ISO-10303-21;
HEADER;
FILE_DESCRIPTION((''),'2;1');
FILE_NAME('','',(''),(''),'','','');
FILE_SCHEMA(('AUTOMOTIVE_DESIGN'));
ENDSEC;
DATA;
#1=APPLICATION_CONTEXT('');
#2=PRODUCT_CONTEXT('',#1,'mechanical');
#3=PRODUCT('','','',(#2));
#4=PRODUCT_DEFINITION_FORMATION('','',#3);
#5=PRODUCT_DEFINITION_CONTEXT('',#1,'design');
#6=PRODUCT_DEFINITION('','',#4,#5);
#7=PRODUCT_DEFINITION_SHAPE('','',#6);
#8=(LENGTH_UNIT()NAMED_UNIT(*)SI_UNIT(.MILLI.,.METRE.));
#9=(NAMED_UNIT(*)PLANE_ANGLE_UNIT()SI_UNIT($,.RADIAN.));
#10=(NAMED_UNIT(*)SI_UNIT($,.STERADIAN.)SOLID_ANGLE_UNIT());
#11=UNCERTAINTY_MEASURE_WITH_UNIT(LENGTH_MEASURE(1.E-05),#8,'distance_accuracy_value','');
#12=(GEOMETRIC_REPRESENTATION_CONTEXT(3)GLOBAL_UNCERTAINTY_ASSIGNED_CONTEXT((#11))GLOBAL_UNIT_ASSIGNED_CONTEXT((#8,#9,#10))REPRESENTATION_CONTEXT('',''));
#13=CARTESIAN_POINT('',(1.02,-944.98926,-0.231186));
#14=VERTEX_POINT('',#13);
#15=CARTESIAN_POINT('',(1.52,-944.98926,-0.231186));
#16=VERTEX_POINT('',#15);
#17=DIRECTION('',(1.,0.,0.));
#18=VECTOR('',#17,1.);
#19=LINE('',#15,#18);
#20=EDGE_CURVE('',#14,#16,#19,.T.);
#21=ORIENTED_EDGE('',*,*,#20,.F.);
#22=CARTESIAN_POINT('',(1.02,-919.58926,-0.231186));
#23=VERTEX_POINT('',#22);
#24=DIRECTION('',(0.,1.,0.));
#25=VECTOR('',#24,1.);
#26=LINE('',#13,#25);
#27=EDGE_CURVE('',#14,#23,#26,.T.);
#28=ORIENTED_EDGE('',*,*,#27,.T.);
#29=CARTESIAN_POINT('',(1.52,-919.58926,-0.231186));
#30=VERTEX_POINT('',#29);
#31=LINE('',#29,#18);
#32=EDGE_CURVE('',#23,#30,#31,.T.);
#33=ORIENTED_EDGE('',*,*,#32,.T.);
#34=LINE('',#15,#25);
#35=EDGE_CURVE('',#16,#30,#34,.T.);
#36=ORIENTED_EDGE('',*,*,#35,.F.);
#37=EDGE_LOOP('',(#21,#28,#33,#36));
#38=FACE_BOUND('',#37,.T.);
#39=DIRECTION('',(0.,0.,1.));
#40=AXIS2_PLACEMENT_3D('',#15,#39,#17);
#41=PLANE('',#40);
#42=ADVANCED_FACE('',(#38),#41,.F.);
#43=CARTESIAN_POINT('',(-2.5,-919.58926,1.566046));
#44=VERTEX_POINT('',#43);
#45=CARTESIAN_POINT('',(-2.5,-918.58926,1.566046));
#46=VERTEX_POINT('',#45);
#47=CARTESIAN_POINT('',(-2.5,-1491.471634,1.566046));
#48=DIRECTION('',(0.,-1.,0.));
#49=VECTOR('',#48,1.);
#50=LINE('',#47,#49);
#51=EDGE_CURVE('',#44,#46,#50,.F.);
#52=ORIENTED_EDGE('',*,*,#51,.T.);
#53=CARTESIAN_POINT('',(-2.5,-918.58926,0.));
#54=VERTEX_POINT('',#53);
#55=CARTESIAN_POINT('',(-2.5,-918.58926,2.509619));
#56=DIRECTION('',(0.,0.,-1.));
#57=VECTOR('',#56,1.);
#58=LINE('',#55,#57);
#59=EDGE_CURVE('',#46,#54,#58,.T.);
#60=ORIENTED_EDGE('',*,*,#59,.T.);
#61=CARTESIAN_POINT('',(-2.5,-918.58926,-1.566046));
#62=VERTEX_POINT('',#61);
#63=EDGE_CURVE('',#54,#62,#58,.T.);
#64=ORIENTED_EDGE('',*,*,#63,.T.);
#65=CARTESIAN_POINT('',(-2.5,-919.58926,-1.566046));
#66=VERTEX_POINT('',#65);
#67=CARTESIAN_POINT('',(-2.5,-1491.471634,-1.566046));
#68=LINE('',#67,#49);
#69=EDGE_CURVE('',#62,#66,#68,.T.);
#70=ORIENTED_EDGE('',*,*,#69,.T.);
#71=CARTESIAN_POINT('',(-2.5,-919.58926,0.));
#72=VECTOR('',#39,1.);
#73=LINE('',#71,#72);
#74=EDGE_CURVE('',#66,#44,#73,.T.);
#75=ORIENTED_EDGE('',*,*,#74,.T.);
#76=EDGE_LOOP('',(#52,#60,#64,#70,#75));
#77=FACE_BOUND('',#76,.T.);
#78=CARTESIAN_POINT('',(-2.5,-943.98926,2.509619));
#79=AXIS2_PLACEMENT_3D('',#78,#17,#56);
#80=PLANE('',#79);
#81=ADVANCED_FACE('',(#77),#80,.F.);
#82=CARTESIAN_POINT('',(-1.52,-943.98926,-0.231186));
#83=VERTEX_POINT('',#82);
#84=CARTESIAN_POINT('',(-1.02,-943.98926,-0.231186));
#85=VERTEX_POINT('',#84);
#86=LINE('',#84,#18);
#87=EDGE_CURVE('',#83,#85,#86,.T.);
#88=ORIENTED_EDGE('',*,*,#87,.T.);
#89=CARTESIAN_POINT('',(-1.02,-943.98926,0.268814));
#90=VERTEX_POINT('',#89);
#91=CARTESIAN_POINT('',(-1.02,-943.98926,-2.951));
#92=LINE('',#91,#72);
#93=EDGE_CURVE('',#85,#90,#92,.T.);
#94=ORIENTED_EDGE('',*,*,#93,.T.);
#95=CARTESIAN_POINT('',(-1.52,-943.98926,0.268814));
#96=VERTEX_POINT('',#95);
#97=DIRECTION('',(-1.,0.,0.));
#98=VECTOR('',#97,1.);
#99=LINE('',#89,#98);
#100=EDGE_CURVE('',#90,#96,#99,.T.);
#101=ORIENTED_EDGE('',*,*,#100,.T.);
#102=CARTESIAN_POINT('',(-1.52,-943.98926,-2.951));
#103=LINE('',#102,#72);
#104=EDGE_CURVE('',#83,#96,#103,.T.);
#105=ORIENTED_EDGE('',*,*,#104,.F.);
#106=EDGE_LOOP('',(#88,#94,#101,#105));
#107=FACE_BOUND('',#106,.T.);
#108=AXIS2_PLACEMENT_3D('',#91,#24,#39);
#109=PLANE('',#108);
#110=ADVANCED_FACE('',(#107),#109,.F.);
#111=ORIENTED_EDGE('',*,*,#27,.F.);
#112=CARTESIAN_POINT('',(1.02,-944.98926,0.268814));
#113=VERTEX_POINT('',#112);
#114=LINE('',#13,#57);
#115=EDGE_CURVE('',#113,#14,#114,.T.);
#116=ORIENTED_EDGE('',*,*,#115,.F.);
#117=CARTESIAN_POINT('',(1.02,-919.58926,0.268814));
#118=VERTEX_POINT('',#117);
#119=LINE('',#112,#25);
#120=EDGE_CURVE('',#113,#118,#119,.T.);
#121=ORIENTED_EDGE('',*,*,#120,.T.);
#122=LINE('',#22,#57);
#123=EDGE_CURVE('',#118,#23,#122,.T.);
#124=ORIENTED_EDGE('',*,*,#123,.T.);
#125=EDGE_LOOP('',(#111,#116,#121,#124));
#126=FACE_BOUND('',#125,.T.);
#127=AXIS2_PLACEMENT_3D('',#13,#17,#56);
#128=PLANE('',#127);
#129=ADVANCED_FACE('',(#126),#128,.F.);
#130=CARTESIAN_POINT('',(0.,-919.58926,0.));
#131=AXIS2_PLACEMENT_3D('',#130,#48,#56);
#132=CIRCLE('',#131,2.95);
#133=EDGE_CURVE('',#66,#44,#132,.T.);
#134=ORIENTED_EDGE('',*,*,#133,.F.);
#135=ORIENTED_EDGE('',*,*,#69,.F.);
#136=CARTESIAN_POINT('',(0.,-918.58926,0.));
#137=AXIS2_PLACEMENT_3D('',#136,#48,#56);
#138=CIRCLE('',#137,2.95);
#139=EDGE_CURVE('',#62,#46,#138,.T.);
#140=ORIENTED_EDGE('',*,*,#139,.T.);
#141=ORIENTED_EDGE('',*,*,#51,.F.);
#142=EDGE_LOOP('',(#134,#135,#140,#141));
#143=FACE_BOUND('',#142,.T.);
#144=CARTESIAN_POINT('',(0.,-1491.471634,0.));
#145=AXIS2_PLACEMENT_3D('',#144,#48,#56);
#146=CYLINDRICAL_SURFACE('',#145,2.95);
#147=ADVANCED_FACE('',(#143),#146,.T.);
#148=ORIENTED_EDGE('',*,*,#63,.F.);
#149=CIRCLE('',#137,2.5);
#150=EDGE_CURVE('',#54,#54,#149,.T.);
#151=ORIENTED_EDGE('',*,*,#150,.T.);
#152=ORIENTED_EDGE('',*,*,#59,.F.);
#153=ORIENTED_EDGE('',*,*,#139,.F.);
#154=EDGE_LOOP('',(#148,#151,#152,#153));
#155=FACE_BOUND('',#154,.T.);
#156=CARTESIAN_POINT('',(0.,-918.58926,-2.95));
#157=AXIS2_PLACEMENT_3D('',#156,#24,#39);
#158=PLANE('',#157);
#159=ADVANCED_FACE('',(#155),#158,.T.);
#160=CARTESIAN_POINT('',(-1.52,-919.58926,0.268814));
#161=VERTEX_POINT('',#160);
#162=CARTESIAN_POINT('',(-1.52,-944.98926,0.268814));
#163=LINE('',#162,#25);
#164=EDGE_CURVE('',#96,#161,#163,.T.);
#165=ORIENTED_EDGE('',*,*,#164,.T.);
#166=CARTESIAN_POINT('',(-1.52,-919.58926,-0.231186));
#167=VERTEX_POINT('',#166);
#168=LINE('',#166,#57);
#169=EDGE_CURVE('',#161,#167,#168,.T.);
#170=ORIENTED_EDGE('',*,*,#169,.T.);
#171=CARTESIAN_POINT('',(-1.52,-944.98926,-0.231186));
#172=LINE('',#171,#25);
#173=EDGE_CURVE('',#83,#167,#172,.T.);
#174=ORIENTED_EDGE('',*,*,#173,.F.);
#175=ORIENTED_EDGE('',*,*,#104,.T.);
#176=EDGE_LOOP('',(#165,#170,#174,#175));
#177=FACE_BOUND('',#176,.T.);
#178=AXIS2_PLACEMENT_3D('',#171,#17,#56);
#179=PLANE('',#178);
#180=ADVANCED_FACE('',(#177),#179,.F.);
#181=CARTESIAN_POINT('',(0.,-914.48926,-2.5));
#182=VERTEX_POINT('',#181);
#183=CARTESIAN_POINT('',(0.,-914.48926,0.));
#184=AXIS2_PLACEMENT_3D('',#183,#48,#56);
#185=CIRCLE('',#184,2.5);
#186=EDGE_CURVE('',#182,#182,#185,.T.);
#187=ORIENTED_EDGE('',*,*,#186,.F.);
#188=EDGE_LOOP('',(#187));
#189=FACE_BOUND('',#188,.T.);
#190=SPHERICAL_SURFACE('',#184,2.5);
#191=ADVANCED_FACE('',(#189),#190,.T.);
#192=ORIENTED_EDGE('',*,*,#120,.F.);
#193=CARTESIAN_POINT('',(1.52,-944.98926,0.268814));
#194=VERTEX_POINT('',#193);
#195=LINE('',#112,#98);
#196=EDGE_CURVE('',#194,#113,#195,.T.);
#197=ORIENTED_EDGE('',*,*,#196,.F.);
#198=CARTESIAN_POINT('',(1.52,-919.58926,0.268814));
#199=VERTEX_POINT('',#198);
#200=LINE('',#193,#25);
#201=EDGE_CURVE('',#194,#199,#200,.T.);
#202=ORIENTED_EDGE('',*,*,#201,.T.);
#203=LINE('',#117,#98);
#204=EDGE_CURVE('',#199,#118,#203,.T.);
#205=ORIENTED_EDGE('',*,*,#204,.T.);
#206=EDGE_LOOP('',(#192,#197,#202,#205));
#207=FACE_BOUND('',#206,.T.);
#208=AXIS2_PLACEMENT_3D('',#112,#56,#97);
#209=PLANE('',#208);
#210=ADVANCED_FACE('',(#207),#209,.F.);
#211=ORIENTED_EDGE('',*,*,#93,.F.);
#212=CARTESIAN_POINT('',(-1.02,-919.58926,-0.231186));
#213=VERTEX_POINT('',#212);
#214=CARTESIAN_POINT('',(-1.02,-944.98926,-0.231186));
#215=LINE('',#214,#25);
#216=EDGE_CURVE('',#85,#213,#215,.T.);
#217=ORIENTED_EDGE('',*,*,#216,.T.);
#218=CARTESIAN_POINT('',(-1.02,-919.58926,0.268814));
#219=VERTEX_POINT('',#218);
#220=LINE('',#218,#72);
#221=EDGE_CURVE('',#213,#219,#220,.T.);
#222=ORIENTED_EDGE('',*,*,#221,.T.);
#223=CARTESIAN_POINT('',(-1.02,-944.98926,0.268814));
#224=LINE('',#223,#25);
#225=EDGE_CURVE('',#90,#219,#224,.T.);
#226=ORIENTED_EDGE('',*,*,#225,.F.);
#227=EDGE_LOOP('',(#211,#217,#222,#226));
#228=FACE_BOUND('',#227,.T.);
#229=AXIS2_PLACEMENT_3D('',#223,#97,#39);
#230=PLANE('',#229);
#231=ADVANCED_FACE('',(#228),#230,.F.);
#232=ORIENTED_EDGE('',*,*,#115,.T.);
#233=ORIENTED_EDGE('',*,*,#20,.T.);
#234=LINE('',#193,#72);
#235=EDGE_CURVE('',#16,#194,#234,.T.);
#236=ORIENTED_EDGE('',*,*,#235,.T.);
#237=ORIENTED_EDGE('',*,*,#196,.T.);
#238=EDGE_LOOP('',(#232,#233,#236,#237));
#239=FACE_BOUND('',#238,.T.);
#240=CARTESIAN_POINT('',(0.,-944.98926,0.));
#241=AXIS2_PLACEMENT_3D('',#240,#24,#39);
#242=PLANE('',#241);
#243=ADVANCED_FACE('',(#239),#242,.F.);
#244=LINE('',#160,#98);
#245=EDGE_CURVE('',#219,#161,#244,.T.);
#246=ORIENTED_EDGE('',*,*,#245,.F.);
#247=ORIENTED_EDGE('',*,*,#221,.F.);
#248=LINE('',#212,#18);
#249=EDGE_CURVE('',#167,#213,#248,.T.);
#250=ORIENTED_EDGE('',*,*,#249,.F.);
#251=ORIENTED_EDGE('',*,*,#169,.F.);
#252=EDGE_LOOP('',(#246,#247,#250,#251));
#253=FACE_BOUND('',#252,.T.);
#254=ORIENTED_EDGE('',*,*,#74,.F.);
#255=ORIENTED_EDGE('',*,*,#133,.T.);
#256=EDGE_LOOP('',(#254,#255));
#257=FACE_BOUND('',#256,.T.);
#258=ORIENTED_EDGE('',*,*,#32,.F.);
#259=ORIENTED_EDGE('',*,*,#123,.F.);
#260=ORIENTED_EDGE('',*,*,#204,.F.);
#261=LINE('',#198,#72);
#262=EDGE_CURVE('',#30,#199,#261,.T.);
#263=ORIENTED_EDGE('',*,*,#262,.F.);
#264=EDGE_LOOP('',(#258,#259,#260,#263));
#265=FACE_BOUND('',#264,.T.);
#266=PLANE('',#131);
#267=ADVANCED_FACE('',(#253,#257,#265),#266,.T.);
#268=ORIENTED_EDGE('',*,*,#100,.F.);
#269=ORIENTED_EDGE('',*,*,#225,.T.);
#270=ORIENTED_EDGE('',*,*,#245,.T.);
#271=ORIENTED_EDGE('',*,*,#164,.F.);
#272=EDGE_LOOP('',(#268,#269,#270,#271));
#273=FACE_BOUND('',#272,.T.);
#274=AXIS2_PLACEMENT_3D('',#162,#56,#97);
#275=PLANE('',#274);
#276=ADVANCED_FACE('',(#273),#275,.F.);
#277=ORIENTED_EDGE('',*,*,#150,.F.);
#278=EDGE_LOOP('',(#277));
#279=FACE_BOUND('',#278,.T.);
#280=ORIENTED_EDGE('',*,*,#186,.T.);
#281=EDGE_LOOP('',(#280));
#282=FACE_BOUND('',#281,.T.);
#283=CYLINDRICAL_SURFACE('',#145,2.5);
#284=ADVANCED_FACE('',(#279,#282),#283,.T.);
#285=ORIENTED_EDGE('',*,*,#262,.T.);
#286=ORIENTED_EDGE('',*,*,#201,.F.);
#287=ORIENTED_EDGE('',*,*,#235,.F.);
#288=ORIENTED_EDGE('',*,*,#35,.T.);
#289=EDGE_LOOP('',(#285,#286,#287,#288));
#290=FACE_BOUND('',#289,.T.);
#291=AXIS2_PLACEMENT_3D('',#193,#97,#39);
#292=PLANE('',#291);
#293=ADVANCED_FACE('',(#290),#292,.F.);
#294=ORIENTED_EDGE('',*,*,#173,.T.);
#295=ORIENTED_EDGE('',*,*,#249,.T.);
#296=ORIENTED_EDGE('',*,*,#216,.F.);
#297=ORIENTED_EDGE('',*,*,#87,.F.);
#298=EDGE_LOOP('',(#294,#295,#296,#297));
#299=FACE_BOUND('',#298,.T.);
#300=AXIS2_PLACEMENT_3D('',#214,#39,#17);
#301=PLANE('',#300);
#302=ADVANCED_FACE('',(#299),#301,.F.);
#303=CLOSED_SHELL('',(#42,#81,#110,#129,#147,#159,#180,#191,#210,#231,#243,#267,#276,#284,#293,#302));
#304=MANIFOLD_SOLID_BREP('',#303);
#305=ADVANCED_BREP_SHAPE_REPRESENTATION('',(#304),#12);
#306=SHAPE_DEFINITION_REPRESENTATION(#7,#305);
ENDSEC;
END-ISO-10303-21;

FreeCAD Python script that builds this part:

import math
import FreeCAD as App
import Part
import Sketcher

V = App.Vector
Q = App.Units.Quantity


def add_polygon(sketch, points):
    """Adds a closed chain of lines whose ends are joined by coincident constraints."""
    first, n = sketch.GeometryCount, len(points)
    for a, b in zip(points, points[1:] + points[:1]):
        sketch.addGeometry(Part.LineSegment(App.Vector(*a, 0), App.Vector(*b, 0)), False)
    for i in range(n):
        sketch.addConstraint(Sketcher.Constraint("Coincident", first + i, 2, first + (i + 1) % n, 1))

doc = App.newDocument("Part")
body = doc.addObject("PartDesign::Body", "Body")

# Sketch on YZ plane
sketch1 = body.newObject("Sketcher::SketchObject", "Sketch")
sketch1.AttachmentSupport = (doc.getObject("YZ_Plane"), [""])
sketch1.MapMode = "FlatFace"
sketch1.addGeometry([
    Part.LineSegment(V(-919.58926, 0, 0), V(-919.58926, -2.95, 0)),  # 0
    Part.LineSegment(V(-919.58926, -2.95, 0), V(-918.58926, -2.95, 0)),  # 1
    Part.LineSegment(V(-918.58926, -2.95, 0), V(-918.58926, -2.5, 0)),  # 2
    Part.LineSegment(V(-918.58926, -2.5, 0), V(-914.48926, -2.5, 0)),  # 3
    Part.ArcOfCircle(Part.Circle(V(-914.48926, 0, 0), V(0, 0, 1), 2.5), math.radians(-90), math.radians(0)),  # 4
    Part.LineSegment(V(-911.98926, 0, 0), V(-919.58926, 0, 0)),  # 5
], False)
sketch1.addConstraint([
    Sketcher.Constraint("Coincident", 0, 2, 1, 1),
    Sketcher.Constraint("Coincident", 1, 2, 2, 1),
    Sketcher.Constraint("Coincident", 2, 2, 3, 1),
    Sketcher.Constraint("Tangent", 3, 2, 4, 1),
    Sketcher.Constraint("Coincident", 4, 2, 5, 1),
    Sketcher.Constraint("Coincident", 5, 2, 0, 1),
    Sketcher.Constraint("Vertical", 0),
    Sketcher.Constraint("Horizontal", 1),
    Sketcher.Constraint("Vertical", 2),
    Sketcher.Constraint("Horizontal", 3),
    Sketcher.Constraint("Horizontal", 5),
    Sketcher.Constraint("PointOnObject", 4, 3, -1),
    Sketcher.Constraint("PointOnObject", 4, 2, -1),
    Sketcher.Constraint("Radius", 4, Q("2.5 mm")),
    Sketcher.Constraint("DistanceX", 1, 1, 1, 2, Q("1 mm")),
    Sketcher.Constraint("DistanceX", 3, 1, 3, 2, Q("4.1 mm")),
    Sketcher.Constraint("DistanceY", 0, 2, 0, 1, Q("2.95 mm")),
    Sketcher.Constraint("DistanceX", 4, 3, -1, 1, Q("914.48926 mm")),
])
revolution = body.newObject("PartDesign::Revolution", "Revolution")
revolution.Profile = sketch1
revolution.ReferenceAxis = (sketch1, ["H_Axis"])
revolution.Angle = 360

# Sketch on XZ plane
sketch2 = body.newObject("Sketcher::SketchObject", "Sketch001")
sketch2.AttachmentSupport = (doc.getObject("XZ_Plane"), [""])
sketch2.MapMode = "FlatFace"
sketch2.AttachmentOffset = App.Placement(V(0, 0, 919.58926), App.Rotation())
add_polygon(sketch2, [(1.02, 0.268814), (1.02, -0.231186), (1.52, -0.231186), (1.52, 0.268814)])  # lines 0-3
add_polygon(sketch2, [(-1.52, 0.268814), (-1.52, -0.231186), (-1.02, -0.231186), (-1.02, 0.268814)])  # lines 4-7
sketch2.addConstraint([
    Sketcher.Constraint("Vertical", 0),
    Sketcher.Constraint("Horizontal", 1),
    Sketcher.Constraint("Vertical", 2),
    Sketcher.Constraint("Horizontal", 3),
    Sketcher.Constraint("Vertical", 4),
    Sketcher.Constraint("Horizontal", 5),
    Sketcher.Constraint("Vertical", 6),
    Sketcher.Constraint("Horizontal", 7),
    Sketcher.Constraint("Symmetric", 1, 2, 4, 2, -2),
    Sketcher.Constraint("Symmetric", 3, 2, 6, 2, -2),
    Sketcher.Constraint("Equal", 7, 0),
    Sketcher.Constraint("DistanceX", 1, 1, 1, 2, Q("0.5 mm")),
    Sketcher.Constraint("DistanceX", -1, 1, 0, 2, Q("1.02 mm")),
    Sketcher.Constraint("DistanceY", 0, 2, -1, 1, Q("0.231186 mm")),
])
pad1 = body.newObject("PartDesign::Pad", "Pad")
pad1.Profile = sketch2
pad1.Length = 25.4

# Sketch on XZ plane
sketch3 = body.newObject("Sketcher::SketchObject", "Sketch002")
sketch3.AttachmentSupport = (doc.getObject("XZ_Plane"), [""])
sketch3.MapMode = "FlatFace"
sketch3.AttachmentOffset = App.Placement(V(0, 0, 918.58926), App.Rotation())
add_polygon(sketch3, [(-3.412534, -3.076485), (-3.412534, 2.509619), (-2.5, 2.509619), (-2.5, -3.076485)])  # lines 0-3
sketch3.addConstraint([
    Sketcher.Constraint("Vertical", 0),
    Sketcher.Constraint("Horizontal", 1),
    Sketcher.Constraint("Vertical", 2),
    Sketcher.Constraint("Horizontal", 3),
    Sketcher.Constraint("DistanceX", 1, 2, -1, 1, Q("2.5 mm")),
    Sketcher.Constraint("DistanceX", 1, 1, 1, 2, Q("0.912534 mm")),
    Sketcher.Constraint("DistanceY", 0, 1, 0, 2, Q("5.586104 mm")),
    Sketcher.Constraint("DistanceY", -1, 1, 0, 2, Q("2.509619 mm")),
])
pocket1 = body.newObject("PartDesign::Pocket", "Pocket")
pocket1.Profile = sketch3
pocket1.Length = 25.4
pocket1.Reversed = True

# Sketch on XY plane
sketch4 = body.newObject("Sketcher::SketchObject", "Sketch003")
sketch4.AttachmentSupport = (doc.getObject("XY_Plane"), [""])
sketch4.MapMode = "FlatFace"
sketch4.AttachmentOffset = App.Placement(V(0, 0, 0.268814), App.Rotation())
add_polygon(sketch4, [(-1.52, -943.98926), (-1.52, -944.98926), (-1.02, -944.98926), (-1.02, -943.98926)])  # lines 0-3
sketch4.addConstraint([
    Sketcher.Constraint("Vertical", 0),
    Sketcher.Constraint("Horizontal", 1),
    Sketcher.Constraint("Vertical", 2),
    Sketcher.Constraint("Horizontal", 3),
    Sketcher.Constraint("DistanceY", 0, 2, 0, 1, Q("1 mm")),
    Sketcher.Constraint("DistanceX", 1, 1, 1, 2, Q("0.5 mm")),
    Sketcher.Constraint("DistanceX", 0, 2, -1, 1, Q("1.52 mm")),
    Sketcher.Constraint("DistanceY", 0, 2, -1, 1, Q("944.98926 mm")),
])
pocket2 = body.newObject("PartDesign::Pocket", "Pocket001")
pocket2.Profile = sketch4
pocket2.Type = "UpToFirst"

doc.recompute()
